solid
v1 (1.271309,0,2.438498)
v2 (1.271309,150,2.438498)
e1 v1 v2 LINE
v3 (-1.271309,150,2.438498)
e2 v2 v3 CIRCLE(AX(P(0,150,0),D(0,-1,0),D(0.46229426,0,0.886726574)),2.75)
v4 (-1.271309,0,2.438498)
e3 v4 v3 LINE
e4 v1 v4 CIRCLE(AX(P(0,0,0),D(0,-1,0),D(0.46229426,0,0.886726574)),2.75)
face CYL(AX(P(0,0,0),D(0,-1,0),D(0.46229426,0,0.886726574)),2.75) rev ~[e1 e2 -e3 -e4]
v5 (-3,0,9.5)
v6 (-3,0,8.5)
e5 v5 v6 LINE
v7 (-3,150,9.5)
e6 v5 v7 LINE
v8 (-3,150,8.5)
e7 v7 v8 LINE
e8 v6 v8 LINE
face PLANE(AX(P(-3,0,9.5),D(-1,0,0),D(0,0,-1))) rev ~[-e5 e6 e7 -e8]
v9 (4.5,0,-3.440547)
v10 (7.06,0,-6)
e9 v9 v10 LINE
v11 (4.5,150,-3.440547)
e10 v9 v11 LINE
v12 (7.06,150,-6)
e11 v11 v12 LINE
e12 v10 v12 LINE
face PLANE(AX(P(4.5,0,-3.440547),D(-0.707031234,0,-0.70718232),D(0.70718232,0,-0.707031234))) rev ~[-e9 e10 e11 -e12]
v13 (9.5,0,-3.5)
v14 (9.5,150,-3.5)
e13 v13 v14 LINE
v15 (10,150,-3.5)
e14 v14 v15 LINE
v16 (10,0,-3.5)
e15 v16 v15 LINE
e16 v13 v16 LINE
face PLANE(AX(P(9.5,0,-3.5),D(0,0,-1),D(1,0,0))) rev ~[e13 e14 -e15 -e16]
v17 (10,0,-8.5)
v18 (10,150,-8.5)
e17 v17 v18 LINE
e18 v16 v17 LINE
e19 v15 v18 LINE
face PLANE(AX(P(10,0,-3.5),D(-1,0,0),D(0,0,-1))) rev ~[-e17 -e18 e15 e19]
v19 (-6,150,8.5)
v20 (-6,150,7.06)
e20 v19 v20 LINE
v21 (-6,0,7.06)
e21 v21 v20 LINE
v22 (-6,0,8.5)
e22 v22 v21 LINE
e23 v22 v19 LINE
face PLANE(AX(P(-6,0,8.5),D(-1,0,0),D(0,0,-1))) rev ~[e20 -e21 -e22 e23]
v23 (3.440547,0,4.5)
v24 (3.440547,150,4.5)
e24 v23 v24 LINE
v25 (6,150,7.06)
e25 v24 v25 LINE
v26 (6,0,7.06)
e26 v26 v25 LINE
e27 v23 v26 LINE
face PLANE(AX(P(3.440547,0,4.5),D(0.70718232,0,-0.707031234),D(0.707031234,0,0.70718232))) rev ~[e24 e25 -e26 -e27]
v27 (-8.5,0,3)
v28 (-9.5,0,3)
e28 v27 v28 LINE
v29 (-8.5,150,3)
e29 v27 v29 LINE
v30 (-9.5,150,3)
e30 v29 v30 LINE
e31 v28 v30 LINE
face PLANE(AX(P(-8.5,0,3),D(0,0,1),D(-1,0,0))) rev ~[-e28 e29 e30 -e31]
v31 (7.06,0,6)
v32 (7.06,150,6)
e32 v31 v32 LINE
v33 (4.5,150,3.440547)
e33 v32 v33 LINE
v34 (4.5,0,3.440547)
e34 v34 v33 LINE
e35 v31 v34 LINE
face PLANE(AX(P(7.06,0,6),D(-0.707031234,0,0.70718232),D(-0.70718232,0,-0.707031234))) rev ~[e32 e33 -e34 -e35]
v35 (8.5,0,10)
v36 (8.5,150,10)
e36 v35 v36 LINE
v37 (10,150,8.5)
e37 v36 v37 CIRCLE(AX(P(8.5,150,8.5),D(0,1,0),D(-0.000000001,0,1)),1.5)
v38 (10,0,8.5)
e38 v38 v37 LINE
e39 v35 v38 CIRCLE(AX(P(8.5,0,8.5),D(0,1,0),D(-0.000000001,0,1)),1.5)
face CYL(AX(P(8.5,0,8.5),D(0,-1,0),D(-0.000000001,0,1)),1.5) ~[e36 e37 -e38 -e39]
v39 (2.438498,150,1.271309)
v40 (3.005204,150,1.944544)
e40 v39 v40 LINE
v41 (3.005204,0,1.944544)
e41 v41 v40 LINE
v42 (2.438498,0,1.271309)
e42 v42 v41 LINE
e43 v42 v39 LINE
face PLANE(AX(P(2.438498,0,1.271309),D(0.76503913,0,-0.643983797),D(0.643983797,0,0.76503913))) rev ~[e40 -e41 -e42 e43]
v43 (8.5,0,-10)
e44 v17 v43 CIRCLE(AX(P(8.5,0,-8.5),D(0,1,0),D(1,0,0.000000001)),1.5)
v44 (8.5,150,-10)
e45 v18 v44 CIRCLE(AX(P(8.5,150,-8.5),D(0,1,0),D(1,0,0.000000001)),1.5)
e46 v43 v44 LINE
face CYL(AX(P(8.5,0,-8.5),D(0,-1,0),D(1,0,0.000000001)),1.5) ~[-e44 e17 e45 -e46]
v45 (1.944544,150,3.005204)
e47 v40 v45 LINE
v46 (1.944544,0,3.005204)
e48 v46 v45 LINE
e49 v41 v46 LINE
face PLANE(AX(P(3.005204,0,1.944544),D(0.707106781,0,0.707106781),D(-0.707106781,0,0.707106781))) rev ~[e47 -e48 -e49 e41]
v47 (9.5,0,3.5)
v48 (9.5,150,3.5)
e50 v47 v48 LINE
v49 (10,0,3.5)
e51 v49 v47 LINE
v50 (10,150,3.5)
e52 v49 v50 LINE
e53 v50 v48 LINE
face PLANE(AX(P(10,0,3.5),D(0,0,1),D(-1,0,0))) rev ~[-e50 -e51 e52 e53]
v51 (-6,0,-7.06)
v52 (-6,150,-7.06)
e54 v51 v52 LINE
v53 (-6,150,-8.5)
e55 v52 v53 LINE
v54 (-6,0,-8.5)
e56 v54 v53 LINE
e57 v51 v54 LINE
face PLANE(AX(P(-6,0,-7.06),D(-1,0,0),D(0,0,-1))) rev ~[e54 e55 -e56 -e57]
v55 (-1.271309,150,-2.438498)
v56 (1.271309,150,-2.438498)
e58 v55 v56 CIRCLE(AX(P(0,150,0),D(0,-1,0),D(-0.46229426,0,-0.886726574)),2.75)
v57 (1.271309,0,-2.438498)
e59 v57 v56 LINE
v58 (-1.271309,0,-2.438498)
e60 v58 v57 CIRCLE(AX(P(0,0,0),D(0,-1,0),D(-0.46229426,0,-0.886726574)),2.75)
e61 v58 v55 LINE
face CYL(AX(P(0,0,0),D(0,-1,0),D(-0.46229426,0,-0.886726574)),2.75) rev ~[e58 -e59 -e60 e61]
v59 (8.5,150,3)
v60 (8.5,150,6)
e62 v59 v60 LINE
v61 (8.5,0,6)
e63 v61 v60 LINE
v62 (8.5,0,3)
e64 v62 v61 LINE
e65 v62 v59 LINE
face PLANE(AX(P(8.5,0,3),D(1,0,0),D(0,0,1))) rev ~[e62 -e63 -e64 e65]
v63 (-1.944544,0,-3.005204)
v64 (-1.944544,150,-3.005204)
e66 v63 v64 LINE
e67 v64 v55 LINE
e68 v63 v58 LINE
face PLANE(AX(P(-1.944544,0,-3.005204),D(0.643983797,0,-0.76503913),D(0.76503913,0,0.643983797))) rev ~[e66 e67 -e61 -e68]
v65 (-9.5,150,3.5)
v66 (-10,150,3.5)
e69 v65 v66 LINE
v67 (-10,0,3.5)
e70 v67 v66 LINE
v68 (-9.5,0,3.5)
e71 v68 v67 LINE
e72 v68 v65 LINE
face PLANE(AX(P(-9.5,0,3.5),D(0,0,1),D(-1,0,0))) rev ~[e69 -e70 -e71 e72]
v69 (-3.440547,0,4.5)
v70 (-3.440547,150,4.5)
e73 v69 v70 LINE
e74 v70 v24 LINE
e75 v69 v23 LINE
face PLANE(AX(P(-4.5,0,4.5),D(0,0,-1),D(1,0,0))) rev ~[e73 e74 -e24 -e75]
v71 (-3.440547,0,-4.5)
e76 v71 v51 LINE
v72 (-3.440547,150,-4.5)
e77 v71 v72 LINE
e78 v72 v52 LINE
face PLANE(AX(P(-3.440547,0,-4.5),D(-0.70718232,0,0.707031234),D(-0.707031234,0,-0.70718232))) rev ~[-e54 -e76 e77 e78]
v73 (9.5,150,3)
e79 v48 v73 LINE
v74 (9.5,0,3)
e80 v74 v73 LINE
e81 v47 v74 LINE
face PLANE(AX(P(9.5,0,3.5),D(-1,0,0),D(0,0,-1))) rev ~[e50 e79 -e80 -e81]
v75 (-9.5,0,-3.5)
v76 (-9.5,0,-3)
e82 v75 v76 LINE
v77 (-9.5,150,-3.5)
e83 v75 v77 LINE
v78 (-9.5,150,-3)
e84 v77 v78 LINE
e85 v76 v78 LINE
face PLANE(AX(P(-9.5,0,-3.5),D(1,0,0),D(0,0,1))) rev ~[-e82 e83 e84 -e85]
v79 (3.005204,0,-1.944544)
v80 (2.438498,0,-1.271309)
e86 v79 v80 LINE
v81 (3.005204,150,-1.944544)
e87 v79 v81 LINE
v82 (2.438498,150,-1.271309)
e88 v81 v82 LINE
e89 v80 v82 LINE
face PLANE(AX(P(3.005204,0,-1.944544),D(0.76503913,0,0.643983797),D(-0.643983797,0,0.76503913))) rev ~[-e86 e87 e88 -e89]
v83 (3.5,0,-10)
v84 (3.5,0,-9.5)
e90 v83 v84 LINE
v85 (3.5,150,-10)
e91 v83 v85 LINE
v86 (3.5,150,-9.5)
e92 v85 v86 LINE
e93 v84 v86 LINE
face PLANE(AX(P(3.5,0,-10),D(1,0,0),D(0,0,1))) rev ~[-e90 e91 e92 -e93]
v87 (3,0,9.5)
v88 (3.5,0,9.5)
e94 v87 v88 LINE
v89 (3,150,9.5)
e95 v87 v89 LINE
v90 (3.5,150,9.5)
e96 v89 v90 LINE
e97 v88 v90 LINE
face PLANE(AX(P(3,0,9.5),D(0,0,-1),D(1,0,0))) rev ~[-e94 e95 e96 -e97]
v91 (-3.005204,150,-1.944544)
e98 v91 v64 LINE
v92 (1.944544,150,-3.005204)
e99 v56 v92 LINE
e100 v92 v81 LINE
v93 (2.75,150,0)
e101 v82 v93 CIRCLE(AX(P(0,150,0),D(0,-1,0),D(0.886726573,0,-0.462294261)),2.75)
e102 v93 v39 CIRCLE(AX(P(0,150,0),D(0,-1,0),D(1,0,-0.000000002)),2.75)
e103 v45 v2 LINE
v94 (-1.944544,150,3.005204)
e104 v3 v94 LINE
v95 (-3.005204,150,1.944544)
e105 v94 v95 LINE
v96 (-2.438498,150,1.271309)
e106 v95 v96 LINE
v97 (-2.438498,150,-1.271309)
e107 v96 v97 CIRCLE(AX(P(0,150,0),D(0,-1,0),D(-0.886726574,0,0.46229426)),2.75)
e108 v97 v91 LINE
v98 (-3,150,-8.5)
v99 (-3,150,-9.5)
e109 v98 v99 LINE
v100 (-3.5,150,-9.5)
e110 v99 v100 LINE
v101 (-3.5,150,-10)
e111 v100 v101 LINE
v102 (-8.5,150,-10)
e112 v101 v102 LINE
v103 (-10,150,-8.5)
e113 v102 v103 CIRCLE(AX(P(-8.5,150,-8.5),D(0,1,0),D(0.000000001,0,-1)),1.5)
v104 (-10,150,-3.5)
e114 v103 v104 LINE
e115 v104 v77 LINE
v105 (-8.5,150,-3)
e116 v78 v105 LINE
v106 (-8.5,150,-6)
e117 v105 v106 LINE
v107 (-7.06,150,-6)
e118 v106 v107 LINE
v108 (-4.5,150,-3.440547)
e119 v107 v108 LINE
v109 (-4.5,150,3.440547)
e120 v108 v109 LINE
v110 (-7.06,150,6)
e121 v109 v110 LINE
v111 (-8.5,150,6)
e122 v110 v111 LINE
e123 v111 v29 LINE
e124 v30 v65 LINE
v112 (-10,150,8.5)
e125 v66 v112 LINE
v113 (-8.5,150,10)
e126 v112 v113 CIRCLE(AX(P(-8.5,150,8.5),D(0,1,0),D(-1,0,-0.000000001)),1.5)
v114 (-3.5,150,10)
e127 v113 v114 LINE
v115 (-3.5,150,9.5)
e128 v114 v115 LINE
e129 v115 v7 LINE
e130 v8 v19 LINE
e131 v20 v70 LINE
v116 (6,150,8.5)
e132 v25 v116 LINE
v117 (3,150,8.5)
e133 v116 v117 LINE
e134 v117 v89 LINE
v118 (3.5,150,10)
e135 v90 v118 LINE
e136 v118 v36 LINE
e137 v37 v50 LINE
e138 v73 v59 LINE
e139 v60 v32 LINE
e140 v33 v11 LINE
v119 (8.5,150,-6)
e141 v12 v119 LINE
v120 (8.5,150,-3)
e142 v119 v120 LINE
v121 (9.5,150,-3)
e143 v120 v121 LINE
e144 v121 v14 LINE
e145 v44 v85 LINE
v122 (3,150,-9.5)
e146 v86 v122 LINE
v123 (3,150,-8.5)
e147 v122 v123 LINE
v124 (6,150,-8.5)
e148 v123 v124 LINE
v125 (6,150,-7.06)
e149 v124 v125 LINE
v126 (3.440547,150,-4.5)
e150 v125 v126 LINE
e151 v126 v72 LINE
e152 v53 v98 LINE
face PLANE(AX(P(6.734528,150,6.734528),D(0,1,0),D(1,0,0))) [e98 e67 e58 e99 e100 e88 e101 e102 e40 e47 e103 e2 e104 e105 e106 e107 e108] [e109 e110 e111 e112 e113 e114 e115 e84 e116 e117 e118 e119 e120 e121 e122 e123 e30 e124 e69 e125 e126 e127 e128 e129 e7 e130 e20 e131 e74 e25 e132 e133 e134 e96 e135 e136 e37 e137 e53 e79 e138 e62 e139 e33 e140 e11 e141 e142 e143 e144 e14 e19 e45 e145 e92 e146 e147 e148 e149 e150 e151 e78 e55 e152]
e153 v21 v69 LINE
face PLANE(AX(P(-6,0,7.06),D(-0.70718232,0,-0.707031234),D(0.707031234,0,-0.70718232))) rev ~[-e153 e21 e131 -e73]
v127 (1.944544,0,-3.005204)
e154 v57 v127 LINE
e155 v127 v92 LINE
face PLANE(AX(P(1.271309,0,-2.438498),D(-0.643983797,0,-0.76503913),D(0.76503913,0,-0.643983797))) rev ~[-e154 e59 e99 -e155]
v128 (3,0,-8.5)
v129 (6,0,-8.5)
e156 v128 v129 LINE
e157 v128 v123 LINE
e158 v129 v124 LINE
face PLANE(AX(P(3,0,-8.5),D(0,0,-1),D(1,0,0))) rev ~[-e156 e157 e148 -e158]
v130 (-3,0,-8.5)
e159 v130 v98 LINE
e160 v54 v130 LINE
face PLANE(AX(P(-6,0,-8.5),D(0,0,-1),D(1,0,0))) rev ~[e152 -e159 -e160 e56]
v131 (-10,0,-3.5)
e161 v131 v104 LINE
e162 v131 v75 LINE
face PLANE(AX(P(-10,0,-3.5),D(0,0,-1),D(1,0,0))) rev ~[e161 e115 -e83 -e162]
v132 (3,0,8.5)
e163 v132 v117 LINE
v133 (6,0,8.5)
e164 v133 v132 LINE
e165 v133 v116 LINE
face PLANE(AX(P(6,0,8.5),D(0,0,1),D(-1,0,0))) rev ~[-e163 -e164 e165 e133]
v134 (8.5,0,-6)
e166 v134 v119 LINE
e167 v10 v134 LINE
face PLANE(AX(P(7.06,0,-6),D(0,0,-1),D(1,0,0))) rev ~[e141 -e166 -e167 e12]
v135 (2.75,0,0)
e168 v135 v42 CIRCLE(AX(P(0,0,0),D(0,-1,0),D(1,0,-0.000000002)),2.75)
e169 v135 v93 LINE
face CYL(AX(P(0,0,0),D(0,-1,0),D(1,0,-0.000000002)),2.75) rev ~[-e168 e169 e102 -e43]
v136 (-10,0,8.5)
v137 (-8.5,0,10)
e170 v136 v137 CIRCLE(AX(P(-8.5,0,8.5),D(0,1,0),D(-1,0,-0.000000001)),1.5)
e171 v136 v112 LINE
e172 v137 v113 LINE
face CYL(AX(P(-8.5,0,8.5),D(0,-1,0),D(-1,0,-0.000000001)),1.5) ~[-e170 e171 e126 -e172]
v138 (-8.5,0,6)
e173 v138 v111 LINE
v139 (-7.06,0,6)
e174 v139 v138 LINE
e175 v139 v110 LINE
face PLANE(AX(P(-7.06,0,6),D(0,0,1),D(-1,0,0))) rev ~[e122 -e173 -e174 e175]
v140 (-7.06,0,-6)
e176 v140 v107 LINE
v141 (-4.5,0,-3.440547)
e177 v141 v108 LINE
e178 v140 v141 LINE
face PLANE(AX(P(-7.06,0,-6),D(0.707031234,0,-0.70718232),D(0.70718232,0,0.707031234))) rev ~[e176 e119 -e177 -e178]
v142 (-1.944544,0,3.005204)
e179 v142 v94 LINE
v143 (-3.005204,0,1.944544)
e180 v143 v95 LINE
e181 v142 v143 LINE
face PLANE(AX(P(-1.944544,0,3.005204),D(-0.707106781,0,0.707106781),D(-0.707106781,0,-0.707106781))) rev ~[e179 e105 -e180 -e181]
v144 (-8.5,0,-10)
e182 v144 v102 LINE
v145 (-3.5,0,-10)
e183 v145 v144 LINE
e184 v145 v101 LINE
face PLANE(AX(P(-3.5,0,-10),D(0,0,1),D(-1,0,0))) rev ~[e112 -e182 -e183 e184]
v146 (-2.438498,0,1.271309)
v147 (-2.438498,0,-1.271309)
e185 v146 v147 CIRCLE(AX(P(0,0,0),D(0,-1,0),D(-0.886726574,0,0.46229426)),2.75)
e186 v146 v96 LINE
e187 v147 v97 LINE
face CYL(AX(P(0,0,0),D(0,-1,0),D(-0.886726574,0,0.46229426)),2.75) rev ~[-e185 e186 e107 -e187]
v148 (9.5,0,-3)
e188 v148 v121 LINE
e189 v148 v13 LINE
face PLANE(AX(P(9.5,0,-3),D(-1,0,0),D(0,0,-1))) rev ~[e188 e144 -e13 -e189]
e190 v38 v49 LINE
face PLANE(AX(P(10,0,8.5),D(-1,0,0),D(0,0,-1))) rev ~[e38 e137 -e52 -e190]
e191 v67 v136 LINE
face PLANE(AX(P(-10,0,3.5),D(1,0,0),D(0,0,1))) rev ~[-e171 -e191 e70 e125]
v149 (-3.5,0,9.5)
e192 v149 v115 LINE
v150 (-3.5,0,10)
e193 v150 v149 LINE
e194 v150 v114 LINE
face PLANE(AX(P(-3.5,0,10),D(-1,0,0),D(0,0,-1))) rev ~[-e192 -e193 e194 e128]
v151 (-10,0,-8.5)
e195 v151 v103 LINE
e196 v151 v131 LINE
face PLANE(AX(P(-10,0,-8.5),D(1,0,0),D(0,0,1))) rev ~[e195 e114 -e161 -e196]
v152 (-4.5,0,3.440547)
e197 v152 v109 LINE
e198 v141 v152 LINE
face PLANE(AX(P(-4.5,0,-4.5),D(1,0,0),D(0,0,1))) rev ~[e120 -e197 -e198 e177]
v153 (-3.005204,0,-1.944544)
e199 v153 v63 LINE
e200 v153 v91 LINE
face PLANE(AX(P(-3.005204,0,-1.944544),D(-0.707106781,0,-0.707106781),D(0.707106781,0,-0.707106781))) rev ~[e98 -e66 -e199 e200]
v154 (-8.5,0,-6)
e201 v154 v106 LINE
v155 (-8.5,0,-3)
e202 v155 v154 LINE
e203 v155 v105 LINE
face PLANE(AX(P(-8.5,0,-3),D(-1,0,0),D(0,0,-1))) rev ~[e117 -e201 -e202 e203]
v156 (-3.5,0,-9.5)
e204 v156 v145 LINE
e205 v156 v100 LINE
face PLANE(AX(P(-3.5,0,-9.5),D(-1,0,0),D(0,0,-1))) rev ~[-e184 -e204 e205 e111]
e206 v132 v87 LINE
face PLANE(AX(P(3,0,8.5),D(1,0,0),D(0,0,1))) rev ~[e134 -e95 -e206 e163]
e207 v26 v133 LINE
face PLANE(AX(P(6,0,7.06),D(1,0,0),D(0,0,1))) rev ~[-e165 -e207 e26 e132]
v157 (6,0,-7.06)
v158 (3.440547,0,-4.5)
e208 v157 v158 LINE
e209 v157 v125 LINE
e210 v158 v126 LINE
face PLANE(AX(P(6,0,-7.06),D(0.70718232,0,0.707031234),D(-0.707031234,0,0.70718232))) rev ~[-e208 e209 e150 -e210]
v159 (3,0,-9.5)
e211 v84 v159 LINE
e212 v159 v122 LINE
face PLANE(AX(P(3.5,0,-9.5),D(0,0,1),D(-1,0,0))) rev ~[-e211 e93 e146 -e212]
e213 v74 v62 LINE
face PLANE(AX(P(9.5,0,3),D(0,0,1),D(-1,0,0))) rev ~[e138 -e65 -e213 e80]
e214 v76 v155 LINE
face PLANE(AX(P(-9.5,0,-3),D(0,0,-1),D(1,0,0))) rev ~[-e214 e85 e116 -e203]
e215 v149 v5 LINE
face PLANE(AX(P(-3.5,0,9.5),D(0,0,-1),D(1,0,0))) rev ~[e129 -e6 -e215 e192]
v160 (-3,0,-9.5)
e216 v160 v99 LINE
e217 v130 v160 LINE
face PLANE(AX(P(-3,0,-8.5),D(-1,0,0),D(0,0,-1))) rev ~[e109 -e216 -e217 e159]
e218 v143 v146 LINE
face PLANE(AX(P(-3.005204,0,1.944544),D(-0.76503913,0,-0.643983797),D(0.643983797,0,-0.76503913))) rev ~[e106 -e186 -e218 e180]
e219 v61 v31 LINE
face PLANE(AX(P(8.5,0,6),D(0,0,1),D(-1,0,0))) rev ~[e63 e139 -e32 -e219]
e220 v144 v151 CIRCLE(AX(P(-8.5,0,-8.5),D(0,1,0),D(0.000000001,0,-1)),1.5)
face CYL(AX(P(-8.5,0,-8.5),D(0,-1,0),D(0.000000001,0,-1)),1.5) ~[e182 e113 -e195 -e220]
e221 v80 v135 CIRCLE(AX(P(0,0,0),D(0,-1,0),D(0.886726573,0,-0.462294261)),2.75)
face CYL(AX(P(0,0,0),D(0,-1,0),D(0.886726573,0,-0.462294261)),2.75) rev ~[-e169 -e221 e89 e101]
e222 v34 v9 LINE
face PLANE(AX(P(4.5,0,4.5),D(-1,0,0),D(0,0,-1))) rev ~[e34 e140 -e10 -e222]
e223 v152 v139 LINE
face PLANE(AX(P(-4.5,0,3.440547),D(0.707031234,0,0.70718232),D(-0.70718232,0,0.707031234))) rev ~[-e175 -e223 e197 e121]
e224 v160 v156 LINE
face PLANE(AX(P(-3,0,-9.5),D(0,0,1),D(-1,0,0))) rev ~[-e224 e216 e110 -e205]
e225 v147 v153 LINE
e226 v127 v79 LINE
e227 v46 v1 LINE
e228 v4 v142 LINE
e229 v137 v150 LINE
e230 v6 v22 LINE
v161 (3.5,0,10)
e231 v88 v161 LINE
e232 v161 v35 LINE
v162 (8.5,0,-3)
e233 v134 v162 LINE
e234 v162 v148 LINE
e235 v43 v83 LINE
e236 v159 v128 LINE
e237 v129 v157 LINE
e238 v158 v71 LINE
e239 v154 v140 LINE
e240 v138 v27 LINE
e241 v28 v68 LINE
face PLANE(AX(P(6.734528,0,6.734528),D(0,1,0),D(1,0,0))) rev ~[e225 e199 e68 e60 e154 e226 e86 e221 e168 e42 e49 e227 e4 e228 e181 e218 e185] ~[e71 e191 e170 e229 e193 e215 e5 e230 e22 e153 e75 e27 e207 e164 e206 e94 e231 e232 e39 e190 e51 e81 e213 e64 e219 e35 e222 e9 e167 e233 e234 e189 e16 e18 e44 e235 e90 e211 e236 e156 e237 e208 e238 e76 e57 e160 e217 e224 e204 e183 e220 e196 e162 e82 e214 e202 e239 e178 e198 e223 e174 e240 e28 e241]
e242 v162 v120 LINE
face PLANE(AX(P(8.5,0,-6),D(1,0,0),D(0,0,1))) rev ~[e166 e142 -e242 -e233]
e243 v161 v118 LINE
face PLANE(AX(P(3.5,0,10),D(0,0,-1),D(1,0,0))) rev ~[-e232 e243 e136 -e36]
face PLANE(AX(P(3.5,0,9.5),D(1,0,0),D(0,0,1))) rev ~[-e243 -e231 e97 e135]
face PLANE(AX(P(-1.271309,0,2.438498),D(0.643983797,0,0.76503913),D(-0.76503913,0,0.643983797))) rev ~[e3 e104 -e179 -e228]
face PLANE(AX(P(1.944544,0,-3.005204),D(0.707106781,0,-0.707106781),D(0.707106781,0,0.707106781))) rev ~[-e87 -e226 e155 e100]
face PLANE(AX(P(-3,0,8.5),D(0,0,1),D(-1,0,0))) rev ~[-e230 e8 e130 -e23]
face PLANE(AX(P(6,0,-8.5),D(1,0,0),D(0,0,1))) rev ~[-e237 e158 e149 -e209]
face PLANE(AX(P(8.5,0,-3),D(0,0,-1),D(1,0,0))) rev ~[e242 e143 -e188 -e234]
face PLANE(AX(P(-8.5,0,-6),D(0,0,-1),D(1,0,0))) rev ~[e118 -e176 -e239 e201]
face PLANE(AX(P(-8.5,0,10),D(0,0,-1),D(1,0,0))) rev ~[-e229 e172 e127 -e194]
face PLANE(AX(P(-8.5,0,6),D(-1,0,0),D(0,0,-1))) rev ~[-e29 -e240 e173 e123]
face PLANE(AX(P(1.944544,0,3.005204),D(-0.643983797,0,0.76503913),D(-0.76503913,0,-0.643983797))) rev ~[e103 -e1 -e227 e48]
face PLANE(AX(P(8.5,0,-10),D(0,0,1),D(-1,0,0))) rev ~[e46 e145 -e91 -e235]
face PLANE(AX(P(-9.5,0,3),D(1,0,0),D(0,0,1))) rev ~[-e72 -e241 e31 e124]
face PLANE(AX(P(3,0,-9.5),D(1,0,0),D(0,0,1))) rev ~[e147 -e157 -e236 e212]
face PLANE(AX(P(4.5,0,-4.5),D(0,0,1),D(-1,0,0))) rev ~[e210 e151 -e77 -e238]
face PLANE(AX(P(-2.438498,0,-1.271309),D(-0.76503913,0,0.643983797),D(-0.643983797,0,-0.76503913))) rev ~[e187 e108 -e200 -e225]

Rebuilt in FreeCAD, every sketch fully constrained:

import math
import FreeCAD as App
import Part
import Sketcher
Q = App.Units.Quantity

doc = App.newDocument("Part")
body = doc.addObject("PartDesign::Body", "Body")

sketch1 = doc.addObject("Sketcher::SketchObject", "Sketch")
body.addObject(sketch1)
sketch1.AttachmentSupport = (doc.XZ_Plane, [""])
sketch1.MapMode = "FlatFace"
sketch1.addGeometry(Part.LineSegment(App.Vector(-7.1, -6, 0), App.Vector(-4.5, -3.4, 0)), False)
sketch1.addGeometry(Part.LineSegment(App.Vector(-4.5, -3.4, 0), App.Vector(-4.5, 3.4, 0)), False)
sketch1.addGeometry(Part.LineSegment(App.Vector(-4.5, 3.4, 0), App.Vector(-7.1, 6, 0)), False)
sketch1.addGeometry(Part.LineSegment(App.Vector(-7.1, 6, 0), App.Vector(-8.5, 6, 0)), False)
sketch1.addGeometry(Part.LineSegment(App.Vector(-8.5, 6, 0), App.Vector(-8.5, 3, 0)), False)
sketch1.addGeometry(Part.LineSegment(App.Vector(-8.5, 3, 0), App.Vector(-9.5, 3, 0)), False)
sketch1.addGeometry(Part.LineSegment(App.Vector(-9.5, 3, 0), App.Vector(-9.5, 3.5, 0)), False)
sketch1.addGeometry(Part.LineSegment(App.Vector(-9.5, 3.5, 0), App.Vector(-10, 3.5, 0)), False)
sketch1.addGeometry(Part.LineSegment(App.Vector(-10, 3.5, 0), App.Vector(-10, 8.5, 0)), False)
sketch1.addGeometry(Part.ArcOfCircle(Part.Circle(App.Vector(-8.5, 8.5, 0), App.Vector(0, 0, 1), 1.5), math.radians(90), math.radians(180)), False)
sketch1.addGeometry(Part.LineSegment(App.Vector(-8.5, 10, 0), App.Vector(-3.5, 10, 0)), False)
sketch1.addGeometry(Part.LineSegment(App.Vector(-3.5, 10, 0), App.Vector(-3.5, 9.5, 0)), False)
sketch1.addGeometry(Part.LineSegment(App.Vector(-3.5, 9.5, 0), App.Vector(-3, 9.5, 0)), False)
sketch1.addGeometry(Part.LineSegment(App.Vector(-3, 9.5, 0), App.Vector(-3, 8.5, 0)), False)
sketch1.addGeometry(Part.LineSegment(App.Vector(-3, 8.5, 0), App.Vector(-6, 8.5, 0)), False)
sketch1.addGeometry(Part.LineSegment(App.Vector(-6, 8.5, 0), App.Vector(-6, 7.1, 0)), False)
sketch1.addGeometry(Part.LineSegment(App.Vector(-6, 7.1, 0), App.Vector(-3.4, 4.5, 0)), False)
sketch1.addGeometry(Part.LineSegment(App.Vector(-3.4, 4.5, 0), App.Vector(3.4, 4.5, 0)), False)
sketch1.addGeometry(Part.LineSegment(App.Vector(3.4, 4.5, 0), App.Vector(6, 7.1, 0)), False)
sketch1.addGeometry(Part.LineSegment(App.Vector(6, 7.1, 0), App.Vector(6, 8.5, 0)), False)
sketch1.addGeometry(Part.LineSegment(App.Vector(6, 8.5, 0), App.Vector(3, 8.5, 0)), False)
sketch1.addGeometry(Part.LineSegment(App.Vector(3, 8.5, 0), App.Vector(3, 9.5, 0)), False)
sketch1.addGeometry(Part.LineSegment(App.Vector(3, 9.5, 0), App.Vector(3.5, 9.5, 0)), False)
sketch1.addGeometry(Part.LineSegment(App.Vector(3.5, 9.5, 0), App.Vector(3.5, 10, 0)), False)
sketch1.addGeometry(Part.LineSegment(App.Vector(3.5, 10, 0), App.Vector(8.5, 10, 0)), False)
sketch1.addGeometry(Part.ArcOfCircle(Part.Circle(App.Vector(8.5, 8.5, 0), App.Vector(0, 0, 1), 1.5), math.radians(0), math.radians(90)), False)
sketch1.addGeometry(Part.LineSegment(App.Vector(10, 8.5, 0), App.Vector(10, 3.5, 0)), False)
sketch1.addGeometry(Part.LineSegment(App.Vector(10, 3.5, 0), App.Vector(9.5, 3.5, 0)), False)
sketch1.addGeometry(Part.LineSegment(App.Vector(9.5, 3.5, 0), App.Vector(9.5, 3, 0)), False)
sketch1.addGeometry(Part.LineSegment(App.Vector(9.5, 3, 0), App.Vector(8.5, 3, 0)), False)
sketch1.addGeometry(Part.LineSegment(App.Vector(8.5, 3, 0), App.Vector(8.5, 6, 0)), False)
sketch1.addGeometry(Part.LineSegment(App.Vector(8.5, 6, 0), App.Vector(7.1, 6, 0)), False)
sketch1.addGeometry(Part.LineSegment(App.Vector(7.1, 6, 0), App.Vector(4.5, 3.4, 0)), False)
sketch1.addGeometry(Part.LineSegment(App.Vector(4.5, 3.4, 0), App.Vector(4.5, -3.4, 0)), False)
sketch1.addGeometry(Part.LineSegment(App.Vector(4.5, -3.4, 0), App.Vector(7.1, -6, 0)), False)
sketch1.addGeometry(Part.LineSegment(App.Vector(7.1, -6, 0), App.Vector(8.5, -6, 0)), False)
sketch1.addGeometry(Part.LineSegment(App.Vector(8.5, -6, 0), App.Vector(8.5, -3, 0)), False)
sketch1.addGeometry(Part.LineSegment(App.Vector(8.5, -3, 0), App.Vector(9.5, -3, 0)), False)
sketch1.addGeometry(Part.LineSegment(App.Vector(9.5, -3, 0), App.Vector(9.5, -3.5, 0)), False)
sketch1.addGeometry(Part.LineSegment(App.Vector(9.5, -3.5, 0), App.Vector(10, -3.5, 0)), False)
sketch1.addGeometry(Part.LineSegment(App.Vector(10, -3.5, 0), App.Vector(10, -8.5, 0)), False)
sketch1.addGeometry(Part.ArcOfCircle(Part.Circle(App.Vector(8.5, -8.5, 0), App.Vector(0, 0, 1), 1.5), math.radians(-90), math.radians(0)), False)
sketch1.addGeometry(Part.LineSegment(App.Vector(8.5, -10, 0), App.Vector(3.5, -10, 0)), False)
sketch1.addGeometry(Part.LineSegment(App.Vector(3.5, -10, 0), App.Vector(3.5, -9.5, 0)), False)
sketch1.addGeometry(Part.LineSegment(App.Vector(3.5, -9.5, 0), App.Vector(3, -9.5, 0)), False)
sketch1.addGeometry(Part.LineSegment(App.Vector(3, -9.5, 0), App.Vector(3, -8.5, 0)), False)
sketch1.addGeometry(Part.LineSegment(App.Vector(3, -8.5, 0), App.Vector(6, -8.5, 0)), False)
sketch1.addGeometry(Part.LineSegment(App.Vector(6, -8.5, 0), App.Vector(6, -7.1, 0)), False)
sketch1.addGeometry(Part.LineSegment(App.Vector(6, -7.1, 0), App.Vector(3.4, -4.5, 0)), False)
sketch1.addGeometry(Part.LineSegment(App.Vector(3.4, -4.5, 0), App.Vector(-3.4, -4.5, 0)), False)
sketch1.addGeometry(Part.LineSegment(App.Vector(-3.4, -4.5, 0), App.Vector(-6, -7.1, 0)), False)
sketch1.addGeometry(Part.LineSegment(App.Vector(-6, -7.1, 0), App.Vector(-6, -8.5, 0)), False)
sketch1.addGeometry(Part.LineSegment(App.Vector(-6, -8.5, 0), App.Vector(-3, -8.5, 0)), False)
sketch1.addGeometry(Part.LineSegment(App.Vector(-3, -8.5, 0), App.Vector(-3, -9.5, 0)), False)
sketch1.addGeometry(Part.LineSegment(App.Vector(-3, -9.5, 0), App.Vector(-3.5, -9.5, 0)), False)
sketch1.addGeometry(Part.LineSegment(App.Vector(-3.5, -9.5, 0), App.Vector(-3.5, -10, 0)), False)
sketch1.addGeometry(Part.LineSegment(App.Vector(-3.5, -10, 0), App.Vector(-8.5, -10, 0)), False)
sketch1.addGeometry(Part.ArcOfCircle(Part.Circle(App.Vector(-8.5, -8.5, 0), App.Vector(0, 0, 1), 1.5), math.radians(180), math.radians(270)), False)
sketch1.addGeometry(Part.LineSegment(App.Vector(-10, -8.5, 0), App.Vector(-10, -3.5, 0)), False)
sketch1.addGeometry(Part.LineSegment(App.Vector(-10, -3.5, 0), App.Vector(-9.5, -3.5, 0)), False)
sketch1.addGeometry(Part.LineSegment(App.Vector(-9.5, -3.5, 0), App.Vector(-9.5, -3, 0)), False)
sketch1.addGeometry(Part.LineSegment(App.Vector(-9.5, -3, 0), App.Vector(-8.5, -3, 0)), False)
sketch1.addGeometry(Part.LineSegment(App.Vector(-8.5, -3, 0), App.Vector(-8.5, -6, 0)), False)
sketch1.addGeometry(Part.LineSegment(App.Vector(-8.5, -6, 0), App.Vector(-7.1, -6, 0)), False)
sketch1.addGeometry(Part.LineSegment(App.Vector(-1.9, -3, 0), App.Vector(-1.3, -2.4, 0)), False)
sketch1.addGeometry(Part.ArcOfCircle(Part.Circle(App.Vector(0, 0, 0), App.Vector(0, 0, 1), 2.7), math.radians(-118), math.radians(-62)), False)
sketch1.addGeometry(Part.LineSegment(App.Vector(1.3, -2.4, 0), App.Vector(1.9, -3, 0)), False)
sketch1.addGeometry(Part.LineSegment(App.Vector(1.9, -3, 0), App.Vector(3, -1.9, 0)), False)
sketch1.addGeometry(Part.LineSegment(App.Vector(3, -1.9, 0), App.Vector(2.4, -1.3, 0)), False)
sketch1.addGeometry(Part.ArcOfCircle(Part.Circle(App.Vector(0, 0, 0), App.Vector(0, 0, 1), 2.7), math.radians(-28), math.radians(0)), False)
sketch1.addGeometry(Part.ArcOfCircle(Part.Circle(App.Vector(0, 0, 0), App.Vector(0, 0, 1), 2.7), math.radians(0), math.radians(28)), False)
sketch1.addGeometry(Part.LineSegment(App.Vector(2.4, 1.3, 0), App.Vector(3, 1.9, 0)), False)
sketch1.addGeometry(Part.LineSegment(App.Vector(3, 1.9, 0), App.Vector(1.9, 3, 0)), False)
sketch1.addGeometry(Part.LineSegment(App.Vector(1.9, 3, 0), App.Vector(1.3, 2.4, 0)), False)
sketch1.addGeometry(Part.ArcOfCircle(Part.Circle(App.Vector(0, 0, 0), App.Vector(0, 0, 1), 2.7), math.radians(62), math.radians(118)), False)
sketch1.addGeometry(Part.LineSegment(App.Vector(-1.3, 2.4, 0), App.Vector(-1.9, 3, 0)), False)
sketch1.addGeometry(Part.LineSegment(App.Vector(-1.9, 3, 0), App.Vector(-3, 1.9, 0)), False)
sketch1.addGeometry(Part.LineSegment(App.Vector(-3, 1.9, 0), App.Vector(-2.4, 1.3, 0)), False)
sketch1.addGeometry(Part.ArcOfCircle(Part.Circle(App.Vector(0, 0, 0), App.Vector(0, 0, 1), 2.7), math.radians(152), math.radians(208)), False)
sketch1.addGeometry(Part.LineSegment(App.Vector(-2.4, -1.3, 0), App.Vector(-3, -1.9, 0)), False)
sketch1.addGeometry(Part.LineSegment(App.Vector(-3, -1.9, 0), App.Vector(-1.9, -3, 0)), False)
sketch1.addConstraint(Sketcher.Constraint("Coincident", 0, 2, 1, 1))
sketch1.addConstraint(Sketcher.Constraint("Coincident", 1, 2, 2, 1))
sketch1.addConstraint(Sketcher.Constraint("Coincident", 2, 2, 3, 1))
sketch1.addConstraint(Sketcher.Constraint("Coincident", 3, 2, 4, 1))
sketch1.addConstraint(Sketcher.Constraint("Coincident", 4, 2, 5, 1))
sketch1.addConstraint(Sketcher.Constraint("Coincident", 5, 2, 6, 1))
sketch1.addConstraint(Sketcher.Constraint("Coincident", 6, 2, 7, 1))
sketch1.addConstraint(Sketcher.Constraint("Coincident", 7, 2, 8, 1))
sketch1.addConstraint(Sketcher.Constraint("Tangent", 8, 2, 9, 2))
sketch1.addConstraint(Sketcher.Constraint("Tangent", 9, 1, 10, 1))
sketch1.addConstraint(Sketcher.Constraint("Coincident", 10, 2, 11, 1))
sketch1.addConstraint(Sketcher.Constraint("Coincident", 11, 2, 12, 1))
sketch1.addConstraint(Sketcher.Constraint("Coincident", 12, 2, 13, 1))
sketch1.addConstraint(Sketcher.Constraint("Coincident", 13, 2, 14, 1))
sketch1.addConstraint(Sketcher.Constraint("Coincident", 14, 2, 15, 1))
sketch1.addConstraint(Sketcher.Constraint("Coincident", 15, 2, 16, 1))
sketch1.addConstraint(Sketcher.Constraint("Coincident", 16, 2, 17, 1))
sketch1.addConstraint(Sketcher.Constraint("Coincident", 17, 2, 18, 1))
sketch1.addConstraint(Sketcher.Constraint("Coincident", 18, 2, 19, 1))
sketch1.addConstraint(Sketcher.Constraint("Coincident", 19, 2, 20, 1))
sketch1.addConstraint(Sketcher.Constraint("Coincident", 20, 2, 21, 1))
sketch1.addConstraint(Sketcher.Constraint("Coincident", 21, 2, 22, 1))
sketch1.addConstraint(Sketcher.Constraint("Coincident", 22, 2, 23, 1))
sketch1.addConstraint(Sketcher.Constraint("Coincident", 23, 2, 24, 1))
sketch1.addConstraint(Sketcher.Constraint("Tangent", 24, 2, 25, 2))
sketch1.addConstraint(Sketcher.Constraint("Tangent", 25, 1, 26, 1))
sketch1.addConstraint(Sketcher.Constraint("Coincident", 26, 2, 27, 1))
sketch1.addConstraint(Sketcher.Constraint("Coincident", 27, 2, 28, 1))
sketch1.addConstraint(Sketcher.Constraint("Coincident", 28, 2, 29, 1))
sketch1.addConstraint(Sketcher.Constraint("Coincident", 29, 2, 30, 1))
sketch1.addConstraint(Sketcher.Constraint("Coincident", 30, 2, 31, 1))
sketch1.addConstraint(Sketcher.Constraint("Coincident", 31, 2, 32, 1))
sketch1.addConstraint(Sketcher.Constraint("Coincident", 32, 2, 33, 1))
sketch1.addConstraint(Sketcher.Constraint("Coincident", 33, 2, 34, 1))
sketch1.addConstraint(Sketcher.Constraint("Coincident", 34, 2, 35, 1))
sketch1.addConstraint(Sketcher.Constraint("Coincident", 35, 2, 36, 1))
sketch1.addConstraint(Sketcher.Constraint("Coincident", 36, 2, 37, 1))
sketch1.addConstraint(Sketcher.Constraint("Coincident", 37, 2, 38, 1))
sketch1.addConstraint(Sketcher.Constraint("Coincident", 38, 2, 39, 1))
sketch1.addConstraint(Sketcher.Constraint("Coincident", 39, 2, 40, 1))
sketch1.addConstraint(Sketcher.Constraint("Tangent", 40, 2, 41, 2))
sketch1.addConstraint(Sketcher.Constraint("Tangent", 41, 1, 42, 1))
sketch1.addConstraint(Sketcher.Constraint("Coincident", 42, 2, 43, 1))
sketch1.addConstraint(Sketcher.Constraint("Coincident", 43, 2, 44, 1))
sketch1.addConstraint(Sketcher.Constraint("Coincident", 44, 2, 45, 1))
sketch1.addConstraint(Sketcher.Constraint("Coincident", 45, 2, 46, 1))
sketch1.addConstraint(Sketcher.Constraint("Coincident", 46, 2, 47, 1))
sketch1.addConstraint(Sketcher.Constraint("Coincident", 47, 2, 48, 1))
sketch1.addConstraint(Sketcher.Constraint("Coincident", 48, 2, 49, 1))
sketch1.addConstraint(Sketcher.Constraint("Coincident", 49, 2, 50, 1))
sketch1.addConstraint(Sketcher.Constraint("Coincident", 50, 2, 51, 1))
sketch1.addConstraint(Sketcher.Constraint("Coincident", 51, 2, 52, 1))
sketch1.addConstraint(Sketcher.Constraint("Coincident", 52, 2, 53, 1))
sketch1.addConstraint(Sketcher.Constraint("Coincident", 53, 2, 54, 1))
sketch1.addConstraint(Sketcher.Constraint("Coincident", 54, 2, 55, 1))
sketch1.addConstraint(Sketcher.Constraint("Coincident", 55, 2, 56, 1))
sketch1.addConstraint(Sketcher.Constraint("Tangent", 56, 2, 57, 2))
sketch1.addConstraint(Sketcher.Constraint("Tangent", 57, 1, 58, 1))
sketch1.addConstraint(Sketcher.Constraint("Coincident", 58, 2, 59, 1))
sketch1.addConstraint(Sketcher.Constraint("Coincident", 59, 2, 60, 1))
sketch1.addConstraint(Sketcher.Constraint("Coincident", 60, 2, 61, 1))
sketch1.addConstraint(Sketcher.Constraint("Coincident", 61, 2, 62, 1))
sketch1.addConstraint(Sketcher.Constraint("Coincident", 62, 2, 63, 1))
sketch1.addConstraint(Sketcher.Constraint("Coincident", 63, 2, 0, 1))
sketch1.addConstraint(Sketcher.Constraint("Coincident", 64, 2, 65, 1))
sketch1.addConstraint(Sketcher.Constraint("Coincident", 65, 2, 66, 1))
sketch1.addConstraint(Sketcher.Constraint("Coincident", 66, 2, 67, 1))
sketch1.addConstraint(Sketcher.Constraint("Coincident", 67, 2, 68, 1))
sketch1.addConstraint(Sketcher.Constraint("Coincident", 68, 2, 69, 1))
sketch1.addConstraint(Sketcher.Constraint("Tangent", 69, 2, 70, 1))
sketch1.addConstraint(Sketcher.Constraint("Coincident", 70, 2, 71, 1))
sketch1.addConstraint(Sketcher.Constraint("Coincident", 71, 2, 72, 1))
sketch1.addConstraint(Sketcher.Constraint("Coincident", 72, 2, 73, 1))
sketch1.addConstraint(Sketcher.Constraint("Coincident", 73, 2, 74, 1))
sketch1.addConstraint(Sketcher.Constraint("Coincident", 74, 2, 75, 1))
sketch1.addConstraint(Sketcher.Constraint("Coincident", 75, 2, 76, 1))
sketch1.addConstraint(Sketcher.Constraint("Coincident", 76, 2, 77, 1))
sketch1.addConstraint(Sketcher.Constraint("Coincident", 77, 2, 78, 1))
sketch1.addConstraint(Sketcher.Constraint("Coincident", 78, 2, 79, 1))
sketch1.addConstraint(Sketcher.Constraint("Coincident", 79, 2, 80, 1))
sketch1.addConstraint(Sketcher.Constraint("Coincident", 80, 2, 64, 1))
sketch1.addConstraint(Sketcher.Constraint("Vertical", 1))
sketch1.addConstraint(Sketcher.Constraint("Horizontal", 3))
sketch1.addConstraint(Sketcher.Constraint("Vertical", 4))
sketch1.addConstraint(Sketcher.Constraint("Horizontal", 5))
sketch1.addConstraint(Sketcher.Constraint("Vertical", 6))
sketch1.addConstraint(Sketcher.Constraint("Horizontal", 7))
sketch1.addConstraint(Sketcher.Constraint("Vertical", 8))
sketch1.addConstraint(Sketcher.Constraint("Horizontal", 10))
sketch1.addConstraint(Sketcher.Constraint("Vertical", 11))
sketch1.addConstraint(Sketcher.Constraint("Horizontal", 12))
sketch1.addConstraint(Sketcher.Constraint("Vertical", 13))
sketch1.addConstraint(Sketcher.Constraint("Horizontal", 14))
sketch1.addConstraint(Sketcher.Constraint("Vertical", 15))
sketch1.addConstraint(Sketcher.Constraint("Horizontal", 17))
sketch1.addConstraint(Sketcher.Constraint("Vertical", 19))
sketch1.addConstraint(Sketcher.Constraint("Horizontal", 20))
sketch1.addConstraint(Sketcher.Constraint("Vertical", 21))
sketch1.addConstraint(Sketcher.Constraint("Horizontal", 22))
sketch1.addConstraint(Sketcher.Constraint("Vertical", 23))
sketch1.addConstraint(Sketcher.Constraint("Horizontal", 24))
sketch1.addConstraint(Sketcher.Constraint("Vertical", 26))
sketch1.addConstraint(Sketcher.Constraint("Horizontal", 27))
sketch1.addConstraint(Sketcher.Constraint("Vertical", 28))
sketch1.addConstraint(Sketcher.Constraint("Horizontal", 29))
sketch1.addConstraint(Sketcher.Constraint("Vertical", 30))
sketch1.addConstraint(Sketcher.Constraint("Horizontal", 31))
sketch1.addConstraint(Sketcher.Constraint("Vertical", 33))
sketch1.addConstraint(Sketcher.Constraint("Horizontal", 35))
sketch1.addConstraint(Sketcher.Constraint("Vertical", 36))
sketch1.addConstraint(Sketcher.Constraint("Horizontal", 37))
sketch1.addConstraint(Sketcher.Constraint("Vertical", 38))
sketch1.addConstraint(Sketcher.Constraint("Horizontal", 39))
sketch1.addConstraint(Sketcher.Constraint("Vertical", 40))
sketch1.addConstraint(Sketcher.Constraint("Horizontal", 42))
sketch1.addConstraint(Sketcher.Constraint("Vertical", 43))
sketch1.addConstraint(Sketcher.Constraint("Horizontal", 44))
sketch1.addConstraint(Sketcher.Constraint("Vertical", 45))
sketch1.addConstraint(Sketcher.Constraint("Horizontal", 46))
sketch1.addConstraint(Sketcher.Constraint("Vertical", 47))
sketch1.addConstraint(Sketcher.Constraint("Horizontal", 49))
sketch1.addConstraint(Sketcher.Constraint("Vertical", 51))
sketch1.addConstraint(Sketcher.Constraint("Horizontal", 52))
sketch1.addConstraint(Sketcher.Constraint("Vertical", 53))
sketch1.addConstraint(Sketcher.Constraint("Horizontal", 54))
sketch1.addConstraint(Sketcher.Constraint("Vertical", 55))
sketch1.addConstraint(Sketcher.Constraint("Horizontal", 56))
sketch1.addConstraint(Sketcher.Constraint("Vertical", 58))
sketch1.addConstraint(Sketcher.Constraint("Horizontal", 59))
sketch1.addConstraint(Sketcher.Constraint("Vertical", 60))
sketch1.addConstraint(Sketcher.Constraint("Horizontal", 61))
sketch1.addConstraint(Sketcher.Constraint("Vertical", 62))
sketch1.addConstraint(Sketcher.Constraint("Horizontal", 63))
sketch1.addConstraint(Sketcher.Constraint("Coincident", 65, 3, -1, 1))
sketch1.addConstraint(Sketcher.Constraint("Coincident", 69, 3, -1, 1))
sketch1.addConstraint(Sketcher.Constraint("Coincident", 74, 3, -1, 1))
sketch1.addConstraint(Sketcher.Constraint("Coincident", 78, 3, -1, 1))
sketch1.addConstraint(Sketcher.Constraint("Equal", 9, 25))
sketch1.addConstraint(Sketcher.Constraint("Equal", 25, 41))
sketch1.addConstraint(Sketcher.Constraint("Equal", 41, 57))
sketch1.addConstraint(Sketcher.Constraint("Equal", 65, 69))
sketch1.addConstraint(Sketcher.Constraint("Equal", 69, 70))
sketch1.addConstraint(Sketcher.Constraint("Equal", 70, 74))
sketch1.addConstraint(Sketcher.Constraint("Equal", 74, 78))
sketch1.addConstraint(Sketcher.Constraint("Symmetric", 9, 3, 41, 3, -1, 1))
sketch1.addConstraint(Sketcher.Constraint("Symmetric", 25, 3, 57, 3, -1, 1))
sketch1.addConstraint(Sketcher.Constraint("Symmetric", 0, 2, 32, 2, -1, 1))
sketch1.addConstraint(Sketcher.Constraint("Symmetric", 2, 2, 34, 2, -1, 1))
sketch1.addConstraint(Sketcher.Constraint("Symmetric", 4, 2, 36, 2, -1, 1))
sketch1.addConstraint(Sketcher.Constraint("Symmetric", 6, 2, 38, 2, -1, 1))
sketch1.addConstraint(Sketcher.Constraint("Symmetric", 11, 2, 43, 2, -1, 1))
sketch1.addConstraint(Sketcher.Constraint("Symmetric", 13, 2, 45, 2, -1, 1))
sketch1.addConstraint(Sketcher.Constraint("Symmetric", 15, 2, 47, 2, -1, 1))
sketch1.addConstraint(Sketcher.Constraint("Symmetric", 16, 2, 48, 2, -1, 1))
sketch1.addConstraint(Sketcher.Constraint("Symmetric", 18, 2, 50, 2, -1, 1))
sketch1.addConstraint(Sketcher.Constraint("Symmetric", 20, 2, 52, 2, -1, 1))
sketch1.addConstraint(Sketcher.Constraint("Symmetric", 22, 2, 54, 2, -1, 1))
sketch1.addConstraint(Sketcher.Constraint("Symmetric", 27, 2, 59, 2, -1, 1))
sketch1.addConstraint(Sketcher.Constraint("Symmetric", 29, 2, 61, 2, -1, 1))
sketch1.addConstraint(Sketcher.Constraint("Symmetric", 31, 2, 63, 2, -1, 1))
sketch1.addConstraint(Sketcher.Constraint("Symmetric", 66, 2, 75, 2, -1, 1))
sketch1.addConstraint(Sketcher.Constraint("Symmetric", 67, 2, 76, 2, -1, 1))
sketch1.addConstraint(Sketcher.Constraint("Symmetric", 71, 2, 79, 2, -1, 1))
sketch1.addConstraint(Sketcher.Constraint("Symmetric", 72, 2, 80, 2, -1, 1))
sketch1.addConstraint(Sketcher.Constraint("Symmetric", 9, 3, 25, 3, -2))
sketch1.addConstraint(Sketcher.Constraint("Symmetric", 15, 2, 18, 2, -2))
sketch1.addConstraint(Sketcher.Constraint("Symmetric", 13, 2, 20, 2, -2))
sketch1.addConstraint(Sketcher.Constraint("Symmetric", 11, 2, 22, 2, -2))
sketch1.addConstraint(Sketcher.Constraint("Symmetric", 6, 2, 27, 2, -2))
sketch1.addConstraint(Sketcher.Constraint("Symmetric", 4, 2, 29, 2, -2))
sketch1.addConstraint(Sketcher.Constraint("Symmetric", 2, 2, 31, 2, -2))
sketch1.addConstraint(Sketcher.Constraint("Symmetric", 72, 2, 75, 2, -2))
sketch1.addConstraint(Sketcher.Constraint("Symmetric", 71, 2, 76, 2, -2))
sketch1.addConstraint(Sketcher.Constraint("PointOnObject", 69, 2, -1))
sketch1.addConstraint(Sketcher.Constraint("Perpendicular", 0, 16))
sketch1.addConstraint(Sketcher.Constraint("Perpendicular", 2, 18))
sketch1.addConstraint(Sketcher.Constraint("Perpendicular", 18, 34))
sketch1.addConstraint(Sketcher.Constraint("Perpendicular", 34, 50))
sketch1.addConstraint(Sketcher.Constraint("Perpendicular", 64, 68))
sketch1.addConstraint(Sketcher.Constraint("Perpendicular", 66, 71))
sketch1.addConstraint(Sketcher.Constraint("Perpendicular", 67, 72))
sketch1.addConstraint(Sketcher.Constraint("Perpendicular", 68, 73))
sketch1.addConstraint(Sketcher.Constraint("Perpendicular", 71, 75))
sketch1.addConstraint(Sketcher.Constraint("Perpendicular", 73, 77))
sketch1.addConstraint(Sketcher.Constraint("Perpendicular", 75, 79))
sketch1.addConstraint(Sketcher.Constraint("Horizontal", 8, 2, 13, 2))
sketch1.addConstraint(Sketcher.Constraint("Horizontal", 1, 2, 32, 2))
sketch1.addConstraint(Sketcher.Constraint("Horizontal", 64, 2, 65, 2))
sketch1.addConstraint(Sketcher.Constraint("Vertical", 57, 3, 3, 2))
sketch1.addConstraint(Sketcher.Constraint("Equal", 7, 12))
sketch1.addConstraint(Sketcher.Constraint("Equal", 49, 1))
sketch1.addConstraint(Sketcher.Constraint("Equal", 52, 4))
sketch1.addConstraint(Sketcher.Constraint("Equal", 59, 6))
sketch1.addConstraint(Sketcher.Constraint("Equal", 56, 8))
sketch1.addConstraint(Sketcher.Constraint("Equal", 6, 11))
sketch1.addConstraint(Sketcher.Constraint("Equal", 63, 15))
sketch1.addConstraint(Sketcher.Constraint("Equal", 2, 16))
sketch1.addConstraint(Sketcher.Constraint("Equal", 66, 68))
sketch1.addConstraint(Sketcher.Constraint("Radius", 9, Q("1.5 mm")))
sketch1.addConstraint(Sketcher.Constraint("DistanceX", 5, 2, 5, 1, Q("1 mm")))
sketch1.addConstraint(Sketcher.Constraint("DistanceX", 10, 1, 10, 2, Q("5 mm")))
sketch1.addConstraint(Sketcher.Constraint("DistanceX", 14, 2, 14, 1, Q("3 mm")))
sketch1.addConstraint(Sketcher.Constraint("Radius", 65, Q("2.75 mm")))
sketch1.addConstraint(Sketcher.Constraint("DistanceY", -1, 1, 2, 2, Q("6 mm")))
sketch1.addConstraint(Sketcher.Constraint("Distance", 67, Q("1.5 mm")))
sketch1.addConstraint(Sketcher.Constraint("DistanceX", 3, 2, 3, 1, Q("1.44 mm")))
sketch1.addConstraint(Sketcher.Constraint("DistanceX", 0, 2, -1, 1, Q("4.5 mm")))
sketch1.addConstraint(Sketcher.Constraint("Distance", 0, Q("3.62 mm")))
sketch1.addConstraint(Sketcher.Constraint("Distance", 64, Q("0.88 mm")))
sketch1.addConstraint(Sketcher.Constraint("DistanceY", 64, 2, -1, 1, Q("2.438498 mm")))
pad1 = doc.addObject("PartDesign::Pad", "Pad")
body.addObject(pad1)
pad1.Profile = sketch1
pad1.Length = 150
pad1.Reversed = True

doc.recompute()
